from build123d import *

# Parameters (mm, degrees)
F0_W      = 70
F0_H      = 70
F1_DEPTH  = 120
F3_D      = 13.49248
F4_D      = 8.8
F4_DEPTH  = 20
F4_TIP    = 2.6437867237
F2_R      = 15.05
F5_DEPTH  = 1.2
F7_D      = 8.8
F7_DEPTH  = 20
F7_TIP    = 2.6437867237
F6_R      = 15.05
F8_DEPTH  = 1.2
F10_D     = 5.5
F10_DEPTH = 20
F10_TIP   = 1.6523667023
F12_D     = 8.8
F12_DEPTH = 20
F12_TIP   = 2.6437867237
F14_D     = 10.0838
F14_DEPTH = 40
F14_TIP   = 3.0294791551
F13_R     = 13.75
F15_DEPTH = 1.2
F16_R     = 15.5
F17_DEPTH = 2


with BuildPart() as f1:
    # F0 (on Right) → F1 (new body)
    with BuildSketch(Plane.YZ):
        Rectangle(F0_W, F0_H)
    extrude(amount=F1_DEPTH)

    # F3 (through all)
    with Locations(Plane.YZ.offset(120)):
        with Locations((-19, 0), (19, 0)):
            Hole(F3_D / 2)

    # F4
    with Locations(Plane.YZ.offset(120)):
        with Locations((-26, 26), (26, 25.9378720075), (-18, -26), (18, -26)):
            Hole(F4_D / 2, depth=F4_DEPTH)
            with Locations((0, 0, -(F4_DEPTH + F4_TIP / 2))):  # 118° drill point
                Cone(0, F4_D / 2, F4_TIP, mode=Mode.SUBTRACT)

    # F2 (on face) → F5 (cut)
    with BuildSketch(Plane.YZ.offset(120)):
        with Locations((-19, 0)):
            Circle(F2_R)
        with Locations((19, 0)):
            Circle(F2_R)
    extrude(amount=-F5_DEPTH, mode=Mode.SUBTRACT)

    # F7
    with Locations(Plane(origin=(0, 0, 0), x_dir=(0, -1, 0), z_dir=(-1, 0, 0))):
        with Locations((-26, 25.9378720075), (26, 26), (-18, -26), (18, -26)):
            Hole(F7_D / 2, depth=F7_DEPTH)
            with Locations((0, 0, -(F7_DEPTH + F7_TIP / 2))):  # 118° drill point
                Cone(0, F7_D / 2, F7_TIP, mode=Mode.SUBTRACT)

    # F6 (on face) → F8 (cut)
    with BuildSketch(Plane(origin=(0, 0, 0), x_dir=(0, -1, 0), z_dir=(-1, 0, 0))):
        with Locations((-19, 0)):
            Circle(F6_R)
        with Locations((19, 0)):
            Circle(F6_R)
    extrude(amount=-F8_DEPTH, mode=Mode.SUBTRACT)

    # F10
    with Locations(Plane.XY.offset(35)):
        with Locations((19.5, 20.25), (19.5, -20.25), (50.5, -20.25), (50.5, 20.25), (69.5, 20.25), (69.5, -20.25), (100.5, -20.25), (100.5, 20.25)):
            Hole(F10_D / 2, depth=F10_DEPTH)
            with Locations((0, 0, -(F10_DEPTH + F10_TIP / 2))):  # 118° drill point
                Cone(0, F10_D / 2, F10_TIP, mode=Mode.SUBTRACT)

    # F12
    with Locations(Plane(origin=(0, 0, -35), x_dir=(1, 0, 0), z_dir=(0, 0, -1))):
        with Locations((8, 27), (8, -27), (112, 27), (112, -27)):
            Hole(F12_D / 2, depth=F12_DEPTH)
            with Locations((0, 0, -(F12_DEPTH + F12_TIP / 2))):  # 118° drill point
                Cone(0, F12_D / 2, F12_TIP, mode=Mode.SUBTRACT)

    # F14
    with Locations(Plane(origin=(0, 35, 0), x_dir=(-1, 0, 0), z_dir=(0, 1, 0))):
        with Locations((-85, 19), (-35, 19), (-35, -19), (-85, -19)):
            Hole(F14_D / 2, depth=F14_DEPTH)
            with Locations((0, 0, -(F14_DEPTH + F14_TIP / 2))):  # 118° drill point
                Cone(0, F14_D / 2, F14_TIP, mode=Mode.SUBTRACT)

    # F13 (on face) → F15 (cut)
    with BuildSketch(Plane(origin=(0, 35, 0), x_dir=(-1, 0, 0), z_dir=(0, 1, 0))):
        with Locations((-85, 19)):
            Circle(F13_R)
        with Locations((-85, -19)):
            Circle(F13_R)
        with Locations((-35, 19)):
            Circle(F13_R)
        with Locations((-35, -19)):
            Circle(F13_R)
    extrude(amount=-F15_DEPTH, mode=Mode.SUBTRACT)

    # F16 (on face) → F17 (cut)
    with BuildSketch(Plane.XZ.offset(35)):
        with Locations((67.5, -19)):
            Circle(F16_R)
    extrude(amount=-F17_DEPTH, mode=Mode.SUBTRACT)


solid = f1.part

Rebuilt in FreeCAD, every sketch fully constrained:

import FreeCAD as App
import Part
import Sketcher

V = App.Vector


def add_polygon(sketch, points):
    """Adds a closed chain of lines whose ends are joined by coincident constraints."""
    first, n = sketch.GeometryCount, len(points)
    for a, b in zip(points, points[1:] + points[:1]):
        sketch.addGeometry(Part.LineSegment(App.Vector(*a, 0), App.Vector(*b, 0)), False)
    for i in range(n):
        sketch.addConstraint(Sketcher.Constraint("Coincident", first + i, 2, first + (i + 1) % n, 1))

doc = App.newDocument("Part")
body = doc.addObject("PartDesign::Body", "Body")

sketch1 = doc.addObject("Sketcher::SketchObject", "Sketch")
body.addObject(sketch1)
sketch1.AttachmentSupport = (doc.YZ_Plane, [""])
sketch1.MapMode = "FlatFace"
add_polygon(sketch1, [(-35, 35), (-35, -35), (35, -35), (35, 35)])
sketch1.addConstraint(Sketcher.Constraint("Vertical", 0))
sketch1.addConstraint(Sketcher.Constraint("Horizontal", 1))
sketch1.addConstraint(Sketcher.Constraint("Vertical", 2))
sketch1.addConstraint(Sketcher.Constraint("Horizontal", 3))
sketch1.addConstraint(Sketcher.Constraint("Symmetric", 0, 2, 2, 2, -1, 1))
sketch1.addConstraint(Sketcher.Constraint("Equal", 3, 0))
sketch1.addConstraint(Sketcher.Constraint("DistanceX", 1, 1, 1, 2, 70.0))
pad1 = doc.addObject("PartDesign::Pad", "Pad")
body.addObject(pad1)
pad1.Profile = sketch1
pad1.Length = 120

sketch2 = doc.addObject("Sketcher::SketchObject", "Sketch001")
body.addObject(sketch2)
sketch2.AttachmentSupport = (doc.YZ_Plane, [""])
sketch2.MapMode = "FlatFace"
sketch2.AttachmentOffset = App.Placement(V(0, 0, 120), App.Rotation())
sketch2.addGeometry(Part.Circle(V(-19, 0, 0), V(0, 0, 1), 6.74624), False)
sketch2.addGeometry(Part.Circle(V(19, 0, 0), V(0, 0, 1), 6.74624), False)
sketch2.addConstraint(Sketcher.Constraint("Equal", 0, 1))
sketch2.addConstraint(Sketcher.Constraint("Symmetric", 0, 3, 1, 3, -1, 1))
sketch2.addConstraint(Sketcher.Constraint("PointOnObject", 0, 3, -1))
sketch2.addConstraint(Sketcher.Constraint("DistanceX", 0, 3, -1, 1, 19.0))
sketch2.addConstraint(Sketcher.Constraint("Diameter", 0, 13.49248))
doc.recompute()
hole = doc.addObject("PartDesign::Hole", "Hole")
body.addObject(hole)
hole.Profile = sketch2
hole.ThreadType = "None"
hole.Diameter = 13.49248
hole.DepthType = "ThroughAll"

sketch3 = doc.addObject("Sketcher::SketchObject", "Sketch002")
body.addObject(sketch3)
sketch3.AttachmentSupport = (doc.YZ_Plane, [""])
sketch3.MapMode = "FlatFace"
sketch3.AttachmentOffset = App.Placement(V(0, 0, 120), App.Rotation())
sketch3.addGeometry(Part.Circle(V(-26, 26, 0), V(0, 0, 1), 4.4), False)
sketch3.addGeometry(Part.Circle(V(26, 25.937872, 0), V(0, 0, 1), 4.4), False)
sketch3.addGeometry(Part.Circle(V(-18, -26, 0), V(0, 0, 1), 4.4), False)
sketch3.addGeometry(Part.Circle(V(18, -26, 0), V(0, 0, 1), 4.4), False)
sketch3.addConstraint(Sketcher.Constraint("Equal", 0, 1))
sketch3.addConstraint(Sketcher.Constraint("Equal", 1, 2))
sketch3.addConstraint(Sketcher.Constraint("Equal", 2, 3))
sketch3.addConstraint(Sketcher.Constraint("Symmetric", 2, 3, 3, 3, -2))
sketch3.addConstraint(Sketcher.Constraint("Diameter", 0, 8.8))
sketch3.addConstraint(Sketcher.Constraint("DistanceX", 0, 3, -1, 1, 26.0))
sketch3.addConstraint(Sketcher.Constraint("DistanceY", -1, 1, 0, 3, 26.0))
sketch3.addConstraint(Sketcher.Constraint("DistanceX", -1, 1, 1, 3, 26.0))
sketch3.addConstraint(Sketcher.Constraint("DistanceX", 2, 3, -1, 1, 18.0))
sketch3.addConstraint(Sketcher.Constraint("DistanceY", 2, 3, -1, 1, 26.0))
sketch3.addConstraint(Sketcher.Constraint("DistanceY", -1, 1, 1, 3, 25.937872))
doc.recompute()
hole2 = doc.addObject("PartDesign::Hole", "Hole001")
body.addObject(hole2)
hole2.Profile = sketch3
hole2.ThreadType = "None"
hole2.Diameter = 8.8
hole2.DepthType = "Dimension"
hole2.Depth = 20
hole2.DrillPoint = "Angled"
hole2.DrillPointAngle = 118

sketch4 = doc.addObject("Sketcher::SketchObject", "Sketch003")
body.addObject(sketch4)
sketch4.AttachmentSupport = (doc.YZ_Plane, [""])
sketch4.MapMode = "FlatFace"
sketch4.AttachmentOffset = App.Placement(V(0, 0, 120), App.Rotation())
sketch4.addGeometry(Part.Circle(V(-19, 0, 0), V(0, 0, 1), 15.05), False)
sketch4.addGeometry(Part.Circle(V(19, 0, 0), V(0, 0, 1), 15.05), False)
sketch4.addConstraint(Sketcher.Constraint("Equal", 0, 1))
sketch4.addConstraint(Sketcher.Constraint("Symmetric", 0, 3, 1, 3, -1, 1))
sketch4.addConstraint(Sketcher.Constraint("PointOnObject", 0, 3, -1))
sketch4.addConstraint(Sketcher.Constraint("Diameter", 0, 30.1))
sketch4.addConstraint(Sketcher.Constraint("DistanceX", 0, 3, -1, 1, 19.0))
pocket1 = doc.addObject("PartDesign::Pocket", "Pocket")
body.addObject(pocket1)
pocket1.Profile = sketch4
pocket1.Length = 1.2

sketch5 = doc.addObject("Sketcher::SketchObject", "Sketch004")
body.addObject(sketch5)
sketch5.AttachmentSupport = (doc.YZ_Plane, [""])
sketch5.MapMode = "FlatFace"
sketch5.addGeometry(Part.Circle(V(26, 25.937872, 0), V(0, 0, 1), 4.4), False)
sketch5.addGeometry(Part.Circle(V(-26, 26, 0), V(0, 0, 1), 4.4), False)
sketch5.addGeometry(Part.Circle(V(18, -26, 0), V(0, 0, 1), 4.4), False)
sketch5.addGeometry(Part.Circle(V(-18, -26, 0), V(0, 0, 1), 4.4), False)
sketch5.addConstraint(Sketcher.Constraint("Equal", 0, 1))
sketch5.addConstraint(Sketcher.Constraint("Equal", 1, 2))
sketch5.addConstraint(Sketcher.Constraint("Equal", 2, 3))
sketch5.addConstraint(Sketcher.Constraint("Symmetric", 2, 3, 3, 3, -2))
sketch5.addConstraint(Sketcher.Constraint("Diameter", 0, 8.8))
sketch5.addConstraint(Sketcher.Constraint("DistanceX", -1, 1, 0, 3, 26.0))
sketch5.addConstraint(Sketcher.Constraint("DistanceX", 1, 3, -1, 1, 26.0))
sketch5.addConstraint(Sketcher.Constraint("DistanceY", -1, 1, 1, 3, 26.0))
sketch5.addConstraint(Sketcher.Constraint("DistanceX", -1, 1, 2, 3, 18.0))
sketch5.addConstraint(Sketcher.Constraint("DistanceY", 2, 3, -1, 1, 26.0))
sketch5.addConstraint(Sketcher.Constraint("DistanceY", -1, 1, 0, 3, 25.937872))
doc.recompute()
hole3 = doc.addObject("PartDesign::Hole", "Hole002")
body.addObject(hole3)
hole3.Profile = sketch5
hole3.ThreadType = "None"
hole3.Diameter = 8.8
hole3.DepthType = "Dimension"
hole3.Depth = 20
hole3.DrillPoint = "Angled"
hole3.DrillPointAngle = 118
hole3.Reversed = True

sketch6 = doc.addObject("Sketcher::SketchObject", "Sketch005")
body.addObject(sketch6)
sketch6.AttachmentSupport = (doc.YZ_Plane, [""])
sketch6.MapMode = "FlatFace"
sketch6.addGeometry(Part.Circle(V(19, 0, 0), V(0, 0, 1), 15.05), False)
sketch6.addGeometry(Part.Circle(V(-19, 0, 0), V(0, 0, 1), 15.05), False)
sketch6.addConstraint(Sketcher.Constraint("Equal", 0, 1))
sketch6.addConstraint(Sketcher.Constraint("Symmetric", 0, 3, 1, 3, -1, 1))
sketch6.addConstraint(Sketcher.Constraint("PointOnObject", 0, 3, -1))
sketch6.addConstraint(Sketcher.Constraint("Diameter", 0, 30.1))
sketch6.addConstraint(Sketcher.Constraint("DistanceX", -1, 1, 0, 3, 19.0))
pocket2 = doc.addObject("PartDesign::Pocket", "Pocket001")
body.addObject(pocket2)
pocket2.Profile = sketch6
pocket2.Length = 1.2
pocket2.Reversed = True

sketch7 = doc.addObject("Sketcher::SketchObject", "Sketch006")
body.addObject(sketch7)
sketch7.AttachmentSupport = (doc.XY_Plane, [""])
sketch7.MapMode = "FlatFace"
sketch7.AttachmentOffset = App.Placement(V(0, 0, 35), App.Rotation())
sketch7.addGeometry(Part.Circle(V(19.5, 20.25, 0), V(0, 0, 1), 2.75), False)
sketch7.addGeometry(Part.Circle(V(19.5, -20.25, 0), V(0, 0, 1), 2.75), False)
sketch7.addGeometry(Part.Circle(V(50.5, -20.25, 0), V(0, 0, 1), 2.75), False)
sketch7.addGeometry(Part.Circle(V(50.5, 20.25, 0), V(0, 0, 1), 2.75), False)
sketch7.addGeometry(Part.Circle(V(69.5, 20.25, 0), V(0, 0, 1), 2.75), False)
sketch7.addGeometry(Part.Circle(V(69.5, -20.25, 0), V(0, 0, 1), 2.75), False)
sketch7.addGeometry(Part.Circle(V(100.5, -20.25, 0), V(0, 0, 1), 2.75), False)
sketch7.addGeometry(Part.Circle(V(100.5, 20.25, 0), V(0, 0, 1), 2.75), False)
sketch7.addConstraint(Sketcher.Constraint("Equal", 0, 1))
sketch7.addConstraint(Sketcher.Constraint("Equal", 1, 2))
sketch7.addConstraint(Sketcher.Constraint("Equal", 2, 3))
sketch7.addConstraint(Sketcher.Constraint("Equal", 3, 4))
sketch7.addConstraint(Sketcher.Constraint("Equal", 4, 5))
sketch7.addConstraint(Sketcher.Constraint("Equal", 5, 6))
sketch7.addConstraint(Sketcher.Constraint("Equal", 6, 7))
sketch7.addConstraint(Sketcher.Constraint("Symmetric", 0, 3, 1, 3, -1))
sketch7.addConstraint(Sketcher.Constraint("Symmetric", 2, 3, 3, 3, -1))
sketch7.addConstraint(Sketcher.Constraint("Symmetric", 4, 3, 5, 3, -1))
sketch7.addConstraint(Sketcher.Constraint("Symmetric", 6, 3, 7, 3, -1))
sketch7.addConstraint(Sketcher.Constraint("Horizontal", 1, 3, 2, 3))
sketch7.addConstraint(Sketcher.Constraint("Horizontal", 3, 3, 4, 3))
sketch7.addConstraint(Sketcher.Constraint("Horizontal", 5, 3, 6, 3))
sketch7.addConstraint(Sketcher.Constraint("Diameter", 0, 5.5))
sketch7.addConstraint(Sketcher.Constraint("DistanceX", 1, 3, 2, 3, 31.0))
sketch7.addConstraint(Sketcher.Constraint("DistanceX", 3, 3, 4, 3, 19.0))
sketch7.addConstraint(Sketcher.Constraint("DistanceX", 5, 3, 6, 3, 31.0))
sketch7.addConstraint(Sketcher.Constraint("DistanceX", -1, 1, 0, 3, 19.5))
sketch7.addConstraint(Sketcher.Constraint("DistanceY", 1, 3, 0, 3, 40.5))
doc.recompute()
hole4 = doc.addObject("PartDesign::Hole", "Hole003")
body.addObject(hole4)
hole4.Profile = sketch7
hole4.ThreadType = "None"
hole4.Diameter = 5.5
hole4.DepthType = "Dimension"
hole4.Depth = 20
hole4.DrillPoint = "Angled"
hole4.DrillPointAngle = 118

sketch8 = doc.addObject("Sketcher::SketchObject", "Sketch007")
body.addObject(sketch8)
sketch8.AttachmentSupport = (doc.XY_Plane, [""])
sketch8.MapMode = "FlatFace"
sketch8.AttachmentOffset = App.Placement(V(0, 0, -35), App.Rotation())
sketch8.addGeometry(Part.Circle(V(8, -27, 0), V(0, 0, 1), 4.4), False)
sketch8.addGeometry(Part.Circle(V(8, 27, 0), V(0, 0, 1), 4.4), False)
sketch8.addGeometry(Part.Circle(V(112, -27, 0), V(0, 0, 1), 4.4), False)
sketch8.addGeometry(Part.Circle(V(112, 27, 0), V(0, 0, 1), 4.4), False)
sketch8.addConstraint(Sketcher.Constraint("Equal", 0, 1))
sketch8.addConstraint(Sketcher.Constraint("Equal", 1, 2))
sketch8.addConstraint(Sketcher.Constraint("Equal", 2, 3))
sketch8.addConstraint(Sketcher.Constraint("Symmetric", 0, 3, 1, 3, -1))
sketch8.addConstraint(Sketcher.Constraint("Symmetric", 2, 3, 3, 3, -1))
sketch8.addConstraint(Sketcher.Constraint("Horizontal", 0, 3, 2, 3))
sketch8.addConstraint(Sketcher.Constraint("Diameter", 0, 8.8))
sketch8.addConstraint(Sketcher.Constraint("DistanceX", -1, 1, 0, 3, 8.0))
sketch8.addConstraint(Sketcher.Constraint("DistanceY", 0, 3, -1, 1, 27.0))
sketch8.addConstraint(Sketcher.Constraint("DistanceX", -1, 1, 2, 3, 112.0))
doc.recompute()
hole5 = doc.addObject("PartDesign::Hole", "Hole004")
body.addObject(hole5)
hole5.Profile = sketch8
hole5.ThreadType = "None"
hole5.Diameter = 8.8
hole5.DepthType = "Dimension"
hole5.Depth = 20
hole5.DrillPoint = "Angled"
hole5.DrillPointAngle = 118
hole5.Reversed = True

sketch9 = doc.addObject("Sketcher::SketchObject", "Sketch008")
body.addObject(sketch9)
sketch9.AttachmentSupport = (doc.XZ_Plane, [""])
sketch9.MapMode = "FlatFace"
sketch9.AttachmentOffset = App.Placement(V(0, 0, -35), App.Rotation())
sketch9.addGeometry(Part.Circle(V(85, 19, 0), V(0, 0, 1), 5.0419), False)
sketch9.addGeometry(Part.Circle(V(35, 19, 0), V(0, 0, 1), 5.0419), False)
sketch9.addGeometry(Part.Circle(V(35, -19, 0), V(0, 0, 1), 5.0419), False)
sketch9.addGeometry(Part.Circle(V(85, -19, 0), V(0, 0, 1), 5.0419), False)
sketch9.addConstraint(Sketcher.Constraint("Equal", 0, 1))
sketch9.addConstraint(Sketcher.Constraint("Equal", 1, 2))
sketch9.addConstraint(Sketcher.Constraint("Equal", 2, 3))
sketch9.addConstraint(Sketcher.Constraint("Symmetric", 1, 3, 2, 3, -1))
sketch9.addConstraint(Sketcher.Constraint("Symmetric", 0, 3, 3, 3, -1))
sketch9.addConstraint(Sketcher.Constraint("Horizontal", 0, 3, 1, 3))
sketch9.addConstraint(Sketcher.Constraint("DistanceX", -1, 1, 0, 3, 85.0))
sketch9.addConstraint(Sketcher.Constraint("DistanceY", -1, 1, 0, 3, 19.0))
sketch9.addConstraint(Sketcher.Constraint("DistanceX", -1, 1, 1, 3, 35.0))
sketch9.addConstraint(Sketcher.Constraint("Diameter", 0, 10.0838))
doc.recompute()
hole6 = doc.addObject("PartDesign::Hole", "Hole005")
body.addObject(hole6)
hole6.Profile = sketch9
hole6.ThreadType = "None"
hole6.Diameter = 10.0838
hole6.DepthType = "Dimension"
hole6.Depth = 40
hole6.DrillPoint = "Angled"
hole6.DrillPointAngle = 118
hole6.Reversed = True

sketch10 = doc.addObject("Sketcher::SketchObject", "Sketch009")
body.addObject(sketch10)
sketch10.AttachmentSupport = (doc.XZ_Plane, [""])
sketch10.MapMode = "FlatFace"
sketch10.AttachmentOffset = App.Placement(V(0, 0, -35), App.Rotation())
sketch10.addGeometry(Part.Circle(V(85, 19, 0), V(0, 0, 1), 13.75), False)
sketch10.addGeometry(Part.Circle(V(85, -19, 0), V(0, 0, 1), 13.75), False)
sketch10.addGeometry(Part.Circle(V(35, 19, 0), V(0, 0, 1), 13.75), False)
sketch10.addGeometry(Part.Circle(V(35, -19, 0), V(0, 0, 1), 13.75), False)
sketch10.addConstraint(Sketcher.Constraint("Equal", 0, 1))
sketch10.addConstraint(Sketcher.Constraint("Equal", 1, 2))
sketch10.addConstraint(Sketcher.Constraint("Equal", 2, 3))
sketch10.addConstraint(Sketcher.Constraint("Symmetric", 0, 3, 1, 3, -1))
sketch10.addConstraint(Sketcher.Constraint("Symmetric", 2, 3, 3, 3, -1))
sketch10.addConstraint(Sketcher.Constraint("Horizontal", 0, 3, 2, 3))
sketch10.addConstraint(Sketcher.Constraint("Diameter", 0, 27.5))
sketch10.addConstraint(Sketcher.Constraint("DistanceX", -1, 1, 0, 3, 85.0))
sketch10.addConstraint(Sketcher.Constraint("DistanceY", -1, 1, 0, 3, 19.0))
sketch10.addConstraint(Sketcher.Constraint("DistanceX", -1, 1, 2, 3, 35.0))
pocket3 = doc.addObject("PartDesign::Pocket", "Pocket002")
body.addObject(pocket3)
pocket3.Profile = sketch10
pocket3.Length = 1.2
pocket3.Reversed = True

sketch11 = doc.addObject("Sketcher::SketchObject", "Sketch010")
body.addObject(sketch11)
sketch11.AttachmentSupport = (doc.XZ_Plane, [""])
sketch11.MapMode = "FlatFace"
sketch11.AttachmentOffset = App.Placement(V(0, 0, 35), App.Rotation())
sketch11.addGeometry(Part.Circle(V(67.5, -19, 0), V(0, 0, 1), 15.5), False)
sketch11.addConstraint(Sketcher.Constraint("Diameter", 0, 31.0))
sketch11.addConstraint(Sketcher.Constraint("DistanceY", 0, 3, -1, 1, 19.0))
sketch11.addConstraint(Sketcher.Constraint("DistanceX", -1, 1, 0, 3, 67.5))
pocket4 = doc.addObject("PartDesign::Pocket", "Pocket003")
body.addObject(pocket4)
pocket4.Profile = sketch11
pocket4.Length = 2

doc.recompute()
